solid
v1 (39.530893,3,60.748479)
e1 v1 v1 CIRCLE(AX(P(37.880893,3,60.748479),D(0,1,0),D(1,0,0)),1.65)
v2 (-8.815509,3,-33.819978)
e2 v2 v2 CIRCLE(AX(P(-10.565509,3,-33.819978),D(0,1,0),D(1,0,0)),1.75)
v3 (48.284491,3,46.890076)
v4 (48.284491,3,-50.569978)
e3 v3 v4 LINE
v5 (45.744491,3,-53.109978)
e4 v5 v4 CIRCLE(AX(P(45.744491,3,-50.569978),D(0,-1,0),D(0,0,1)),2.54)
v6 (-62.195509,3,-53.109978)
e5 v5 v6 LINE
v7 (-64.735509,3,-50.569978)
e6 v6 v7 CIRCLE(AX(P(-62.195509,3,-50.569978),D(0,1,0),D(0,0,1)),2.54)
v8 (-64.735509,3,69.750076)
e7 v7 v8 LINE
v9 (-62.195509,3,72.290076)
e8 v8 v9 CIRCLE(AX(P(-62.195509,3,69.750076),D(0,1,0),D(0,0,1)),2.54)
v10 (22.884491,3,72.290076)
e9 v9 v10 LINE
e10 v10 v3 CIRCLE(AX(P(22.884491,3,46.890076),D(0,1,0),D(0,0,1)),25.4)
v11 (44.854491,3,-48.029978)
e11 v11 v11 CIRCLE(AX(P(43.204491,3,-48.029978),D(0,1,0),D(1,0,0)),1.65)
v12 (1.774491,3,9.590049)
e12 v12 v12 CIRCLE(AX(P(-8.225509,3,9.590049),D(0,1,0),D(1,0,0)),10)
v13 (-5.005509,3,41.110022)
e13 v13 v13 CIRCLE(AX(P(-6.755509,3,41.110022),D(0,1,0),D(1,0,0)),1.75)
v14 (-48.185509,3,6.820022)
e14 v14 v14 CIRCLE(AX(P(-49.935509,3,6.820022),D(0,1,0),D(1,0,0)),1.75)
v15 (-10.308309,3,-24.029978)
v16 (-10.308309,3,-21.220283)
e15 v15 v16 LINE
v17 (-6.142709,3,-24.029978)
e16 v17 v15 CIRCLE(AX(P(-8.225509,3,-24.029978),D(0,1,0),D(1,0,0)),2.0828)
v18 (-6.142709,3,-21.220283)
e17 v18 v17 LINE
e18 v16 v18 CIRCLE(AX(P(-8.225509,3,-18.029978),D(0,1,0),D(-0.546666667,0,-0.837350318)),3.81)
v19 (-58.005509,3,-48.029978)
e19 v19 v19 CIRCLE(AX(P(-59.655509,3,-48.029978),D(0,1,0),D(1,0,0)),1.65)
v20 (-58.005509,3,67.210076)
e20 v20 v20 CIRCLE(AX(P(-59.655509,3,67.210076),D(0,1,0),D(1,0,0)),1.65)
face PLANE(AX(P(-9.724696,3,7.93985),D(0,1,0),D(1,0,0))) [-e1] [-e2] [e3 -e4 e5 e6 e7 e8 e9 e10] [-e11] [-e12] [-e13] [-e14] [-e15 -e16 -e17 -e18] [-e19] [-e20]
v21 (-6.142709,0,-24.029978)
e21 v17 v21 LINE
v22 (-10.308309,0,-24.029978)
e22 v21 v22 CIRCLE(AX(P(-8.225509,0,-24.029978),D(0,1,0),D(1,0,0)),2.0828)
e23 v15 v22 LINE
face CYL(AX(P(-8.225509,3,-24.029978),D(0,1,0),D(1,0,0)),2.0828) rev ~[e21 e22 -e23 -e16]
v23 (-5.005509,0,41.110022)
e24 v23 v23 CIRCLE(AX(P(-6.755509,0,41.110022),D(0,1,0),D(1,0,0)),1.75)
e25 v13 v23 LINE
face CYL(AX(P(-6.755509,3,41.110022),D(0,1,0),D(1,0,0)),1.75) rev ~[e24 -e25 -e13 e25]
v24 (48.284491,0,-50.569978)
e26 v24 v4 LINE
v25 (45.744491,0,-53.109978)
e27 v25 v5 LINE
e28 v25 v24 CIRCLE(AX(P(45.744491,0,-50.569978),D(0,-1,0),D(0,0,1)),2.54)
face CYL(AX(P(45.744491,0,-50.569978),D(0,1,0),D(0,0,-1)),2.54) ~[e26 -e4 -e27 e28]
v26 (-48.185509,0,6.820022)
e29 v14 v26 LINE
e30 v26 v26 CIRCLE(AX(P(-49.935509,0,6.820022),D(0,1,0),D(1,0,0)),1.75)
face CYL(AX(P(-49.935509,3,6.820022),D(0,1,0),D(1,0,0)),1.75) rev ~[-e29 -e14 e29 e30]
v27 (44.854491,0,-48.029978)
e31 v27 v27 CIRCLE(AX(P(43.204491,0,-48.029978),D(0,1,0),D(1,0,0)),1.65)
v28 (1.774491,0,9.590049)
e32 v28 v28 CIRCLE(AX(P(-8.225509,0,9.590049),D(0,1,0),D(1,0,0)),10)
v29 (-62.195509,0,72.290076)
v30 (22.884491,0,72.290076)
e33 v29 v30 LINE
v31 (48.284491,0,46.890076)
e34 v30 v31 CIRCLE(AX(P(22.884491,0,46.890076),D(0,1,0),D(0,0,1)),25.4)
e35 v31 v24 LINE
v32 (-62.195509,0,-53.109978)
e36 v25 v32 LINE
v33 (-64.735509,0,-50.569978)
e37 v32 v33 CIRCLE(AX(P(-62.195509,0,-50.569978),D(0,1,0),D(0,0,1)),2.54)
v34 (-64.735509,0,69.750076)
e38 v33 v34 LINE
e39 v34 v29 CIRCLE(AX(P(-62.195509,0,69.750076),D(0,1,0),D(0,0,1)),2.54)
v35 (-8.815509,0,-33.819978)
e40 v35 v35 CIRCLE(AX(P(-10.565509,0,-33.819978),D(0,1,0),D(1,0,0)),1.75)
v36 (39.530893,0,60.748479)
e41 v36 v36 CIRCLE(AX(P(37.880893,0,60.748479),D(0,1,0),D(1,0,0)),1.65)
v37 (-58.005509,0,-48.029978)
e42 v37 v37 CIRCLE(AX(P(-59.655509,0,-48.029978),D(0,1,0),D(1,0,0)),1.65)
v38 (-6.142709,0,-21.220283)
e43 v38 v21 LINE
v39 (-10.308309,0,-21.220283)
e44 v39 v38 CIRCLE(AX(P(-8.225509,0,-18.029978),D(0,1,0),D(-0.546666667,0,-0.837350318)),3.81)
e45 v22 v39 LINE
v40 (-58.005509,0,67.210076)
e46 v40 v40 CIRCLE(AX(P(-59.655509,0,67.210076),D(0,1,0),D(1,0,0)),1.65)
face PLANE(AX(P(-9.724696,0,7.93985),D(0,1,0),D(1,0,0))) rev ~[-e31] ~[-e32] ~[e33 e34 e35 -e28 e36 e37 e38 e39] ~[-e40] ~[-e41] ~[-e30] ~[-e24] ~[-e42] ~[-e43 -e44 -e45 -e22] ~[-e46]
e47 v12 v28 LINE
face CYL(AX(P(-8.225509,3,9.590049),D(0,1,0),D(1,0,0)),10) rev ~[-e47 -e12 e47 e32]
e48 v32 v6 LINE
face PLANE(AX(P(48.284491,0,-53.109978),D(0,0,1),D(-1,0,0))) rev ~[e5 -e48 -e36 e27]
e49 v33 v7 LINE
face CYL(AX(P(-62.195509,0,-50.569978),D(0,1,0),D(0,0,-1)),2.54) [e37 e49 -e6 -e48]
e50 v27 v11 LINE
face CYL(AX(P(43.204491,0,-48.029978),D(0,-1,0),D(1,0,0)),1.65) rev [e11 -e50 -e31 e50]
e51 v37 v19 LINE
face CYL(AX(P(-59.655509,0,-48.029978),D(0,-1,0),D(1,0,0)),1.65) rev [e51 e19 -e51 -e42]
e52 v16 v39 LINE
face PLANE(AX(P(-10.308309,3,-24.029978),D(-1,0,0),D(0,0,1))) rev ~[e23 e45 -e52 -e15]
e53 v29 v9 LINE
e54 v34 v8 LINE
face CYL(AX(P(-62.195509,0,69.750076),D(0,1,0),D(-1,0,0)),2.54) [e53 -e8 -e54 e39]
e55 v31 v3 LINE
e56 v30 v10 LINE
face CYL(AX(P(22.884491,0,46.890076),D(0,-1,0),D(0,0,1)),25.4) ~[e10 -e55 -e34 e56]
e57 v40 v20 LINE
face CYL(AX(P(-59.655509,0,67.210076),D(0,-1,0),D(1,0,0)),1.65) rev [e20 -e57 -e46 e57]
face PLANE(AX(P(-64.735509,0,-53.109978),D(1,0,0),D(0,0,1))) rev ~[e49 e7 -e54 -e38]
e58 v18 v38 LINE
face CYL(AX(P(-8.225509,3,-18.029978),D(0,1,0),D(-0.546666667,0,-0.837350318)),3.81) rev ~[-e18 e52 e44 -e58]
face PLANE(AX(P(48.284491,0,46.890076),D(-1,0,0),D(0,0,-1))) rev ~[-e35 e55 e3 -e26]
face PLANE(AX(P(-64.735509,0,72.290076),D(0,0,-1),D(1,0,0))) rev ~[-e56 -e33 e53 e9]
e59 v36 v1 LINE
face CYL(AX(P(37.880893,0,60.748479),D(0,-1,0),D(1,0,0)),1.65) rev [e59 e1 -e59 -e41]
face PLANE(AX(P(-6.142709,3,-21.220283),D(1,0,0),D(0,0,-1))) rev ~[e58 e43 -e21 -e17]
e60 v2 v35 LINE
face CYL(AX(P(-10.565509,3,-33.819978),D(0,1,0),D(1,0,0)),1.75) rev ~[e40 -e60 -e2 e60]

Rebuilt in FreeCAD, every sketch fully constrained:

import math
import FreeCAD as App
import Part
import Sketcher


def edges_at(feature, points):
    """Names of the edges that pass closest to the given points."""
    edges = feature.Shape.Edges
    near = lambda p: min(range(len(edges)), key=lambda i: edges[i].distToShape(Part.Vertex(*p))[0])
    return sorted({f"Edge{near(p) + 1}" for p in points})

doc = App.newDocument("Part")
body = doc.addObject("PartDesign::Body", "Body")

# Sketch on XZ plane
sketch1 = doc.addObject("Sketcher::SketchObject", "Sketch")
body.addObject(sketch1)
sketch1.AttachmentSupport = (doc.XZ_Plane, [""])
sketch1.MapMode = "FlatFace"
sketch1.addGeometry(Part.LineSegment(App.Vector(48.3, -53.1, 0), App.Vector(-64.7, -53.1, 0)), False)
sketch1.addGeometry(Part.LineSegment(App.Vector(-64.7, -53.1, 0), App.Vector(-64.7, 72.3, 0)), False)
sketch1.addGeometry(Part.LineSegment(App.Vector(-64.7, 72.3, 0), App.Vector(22.9, 72.3, 0)), False)
sketch1.addGeometry(Part.ArcOfCircle(Part.Circle(App.Vector(22.9, 46.9, 0), App.Vector(0, 0, 1), 25.4), math.radians(0), math.radians(90)), False)
sketch1.addGeometry(Part.LineSegment(App.Vector(48.3, 46.9, 0), App.Vector(48.3, -53.1, 0)), False)
sketch1.addGeometry(Part.Circle(App.Vector(-59.7, 67.2, 0), App.Vector(0, 0, 1), 1.6), False)
sketch1.addGeometry(Part.Circle(App.Vector(37.9, 60.7, 0), App.Vector(0, 0, 1), 1.6), False)
sketch1.addGeometry(Part.Circle(App.Vector(-59.7, -48, 0), App.Vector(0, 0, 1), 1.6), False)
sketch1.addGeometry(Part.Circle(App.Vector(43.2, -48, 0), App.Vector(0, 0, 1), 1.6), False)
sketch1.addConstraint(Sketcher.Constraint("Coincident", 0, 2, 1, 1))
sketch1.addConstraint(Sketcher.Constraint("Coincident", 1, 2, 2, 1))
sketch1.addConstraint(Sketcher.Constraint("Tangent", 2, 2, 3, 2))
sketch1.addConstraint(Sketcher.Constraint("Tangent", 3, 1, 4, 1))
sketch1.addConstraint(Sketcher.Constraint("Coincident", 4, 2, 0, 1))
sketch1.addConstraint(Sketcher.Constraint("Horizontal", 0))
sketch1.addConstraint(Sketcher.Constraint("Vertical", 1))
sketch1.addConstraint(Sketcher.Constraint("Horizontal", 2))
sketch1.addConstraint(Sketcher.Constraint("Vertical", 4))
sketch1.addConstraint(Sketcher.Constraint("Equal", 5, 6))
sketch1.addConstraint(Sketcher.Constraint("Equal", 6, 7))
sketch1.addConstraint(Sketcher.Constraint("Equal", 7, 8))
sketch1.addConstraint(Sketcher.Constraint("Horizontal", 7, 3, 8, 3))
sketch1.addConstraint(Sketcher.Constraint("Vertical", 5, 3, 7, 3))
sketch1.addConstraint(Sketcher.Constraint("Diameter", 5, 3.3))
sketch1.addConstraint(Sketcher.Constraint("Radius", 3, 25.4))
sketch1.addConstraint(Sketcher.Constraint("DistanceX", 0, 2, 0, 1, 113.02))
sketch1.addConstraint(Sketcher.Constraint("DistanceX", 5, 3, 3, 3, 82.54))
sketch1.addConstraint(Sketcher.Constraint("DistanceY", 3, 3, 5, 3, 20.32))
sketch1.addConstraint(Sketcher.Constraint("DistanceX", 3, 3, 8, 3, 20.32))
sketch1.addConstraint(Sketcher.Constraint("DistanceY", 0, 2, 7, 3, 5.08))
sketch1.addConstraint(Sketcher.Constraint("DistanceX", 3, 3, 6, 3, 14.996402))
sketch1.addConstraint(Sketcher.Constraint("DistanceY", 1, 1, 1, 2, 125.400054))
sketch1.addConstraint(Sketcher.Constraint("DistanceX", -1, 1, 3, 3, 22.884491))
sketch1.addConstraint(Sketcher.Constraint("DistanceY", -1, 1, 6, 3, 60.748479))
sketch1.addConstraint(Sketcher.Constraint("DistanceY", -1, 1, 3, 3, 46.890076))
pad1 = doc.addObject("PartDesign::Pad", "Pad")
body.addObject(pad1)
pad1.Profile = sketch1
pad1.Length = 3
pad1.Reversed = True

# Sketch on XZ plane
sketch2 = doc.addObject("Sketcher::SketchObject", "Sketch001")
body.addObject(sketch2)
sketch2.AttachmentSupport = (doc.XZ_Plane, [""])
sketch2.MapMode = "FlatFace"
sketch2.AttachmentOffset = App.Placement(App.Vector(0, 0, -3), App.Rotation())
sketch2.addGeometry(Part.LineSegment(App.Vector(-10.3, -24, 0), App.Vector(-10.3, -21.2, 0)), False)
sketch2.addGeometry(Part.ArcOfCircle(Part.Circle(App.Vector(-8.2, -18, 0), App.Vector(0, 0, 1), 3.8), math.radians(-57), math.radians(237)), False)
sketch2.addGeometry(Part.LineSegment(App.Vector(-6.1, -21.2, 0), App.Vector(-6.1, -24, 0)), False)
sketch2.addGeometry(Part.ArcOfCircle(Part.Circle(App.Vector(-8.2, -24, 0), App.Vector(0, 0, 1), 2.1), math.radians(180), math.radians(360)), False)
sketch2.addConstraint(Sketcher.Constraint("Coincident", 0, 2, 1, 2))
sketch2.addConstraint(Sketcher.Constraint("Coincident", 1, 1, 2, 1))
sketch2.addConstraint(Sketcher.Constraint("Tangent", 2, 2, 3, 2))
sketch2.addConstraint(Sketcher.Constraint("Tangent", 3, 1, 0, 1))
sketch2.addConstraint(Sketcher.Constraint("Vertical", 0))
sketch2.addConstraint(Sketcher.Constraint("Vertical", 2))
sketch2.addConstraint(Sketcher.Constraint("Horizontal", 0, 2, 1, 1))
sketch2.addConstraint(Sketcher.Constraint("Radius", 1, 3.81))
sketch2.addConstraint(Sketcher.Constraint("DistanceY", 3, 3, 1, 3, 6.0))
sketch2.addConstraint(Sketcher.Constraint("Radius", 3, 2.0828))
sketch2.addConstraint(Sketcher.Constraint("DistanceX", 1, 3, -1, 1, 8.225509))
sketch2.addConstraint(Sketcher.Constraint("DistanceY", 1, 3, -1, 1, 18.029978))
pocket1 = doc.addObject("PartDesign::Pocket", "Pocket")
body.addObject(pocket1)
pocket1.Profile = sketch2
pocket1.Type = "ThroughAll"
pocket1.Reversed = True

# Sketch on XZ plane
sketch3 = doc.addObject("Sketcher::SketchObject", "Sketch002")
body.addObject(sketch3)
sketch3.AttachmentSupport = (doc.XZ_Plane, [""])
sketch3.MapMode = "FlatFace"
sketch3.AttachmentOffset = App.Placement(App.Vector(0, 0, -3), App.Rotation())
sketch3.addGeometry(Part.Circle(App.Vector(-49.9, 6.8, 0), App.Vector(0, 0, 1), 1.8), False)
sketch3.addGeometry(Part.Circle(App.Vector(-6.8, 41.1, 0), App.Vector(0, 0, 1), 1.8), False)
sketch3.addGeometry(Part.Circle(App.Vector(-10.6, -33.8, 0), App.Vector(0, 0, 1), 1.8), False)
sketch3.addConstraint(Sketcher.Constraint("Equal", 0, 1))
sketch3.addConstraint(Sketcher.Constraint("Equal", 1, 2))
sketch3.addConstraint(Sketcher.Constraint("Diameter", 0, 3.5))
sketch3.addConstraint(Sketcher.Constraint("DistanceX", 0, 3, 1, 3, 43.18))
sketch3.addConstraint(Sketcher.Constraint("DistanceY", 0, 3, 1, 3, 34.29))
sketch3.addConstraint(Sketcher.Constraint("DistanceX", 0, 3, 2, 3, 39.37))
sketch3.addConstraint(Sketcher.Constraint("DistanceY", 2, 3, 0, 3, 40.64))
sketch3.addConstraint(Sketcher.Constraint("DistanceX", 0, 3, -1, 1, 49.935509))
sketch3.addConstraint(Sketcher.Constraint("DistanceY", -1, 1, 0, 3, 6.820022))
pocket2 = doc.addObject("PartDesign::Pocket", "Pocket001")
body.addObject(pocket2)
pocket2.Profile = sketch3
pocket2.Type = "ThroughAll"
pocket2.Reversed = True

# Sketch on XZ plane
sketch4 = doc.addObject("Sketcher::SketchObject", "Sketch003")
body.addObject(sketch4)
sketch4.AttachmentSupport = (doc.XZ_Plane, [""])
sketch4.MapMode = "FlatFace"
sketch4.AttachmentOffset = App.Placement(App.Vector(0, 0, -3), App.Rotation())
sketch4.addGeometry(Part.Circle(App.Vector(-8, 10, 0), App.Vector(0, 0, 1), 10), False)
sketch4.addConstraint(Sketcher.Constraint("Diameter", 0, 20.0))
sketch4.addConstraint(Sketcher.Constraint("DistanceX", 0, 3, -1, 1, 8.225509))
sketch4.addConstraint(Sketcher.Constraint("DistanceY", -1, 1, 0, 3, 9.590049))
pocket3 = doc.addObject("PartDesign::Pocket", "Pocket002")
body.addObject(pocket3)
pocket3.Profile = sketch4
pocket3.Type = "ThroughAll"
pocket3.Reversed = True
doc.recompute()

fillet = doc.addObject("PartDesign::Fillet", "Fillet")
body.addObject(fillet)
fillet.Base = (pocket3, edges_at(pocket3, [(-64.736, 1.5, 72.29), (-64.736, 1.5, -53.11), (48.284, 1.5, -53.11)]))
fillet.Radius = 2.54

doc.recompute()
